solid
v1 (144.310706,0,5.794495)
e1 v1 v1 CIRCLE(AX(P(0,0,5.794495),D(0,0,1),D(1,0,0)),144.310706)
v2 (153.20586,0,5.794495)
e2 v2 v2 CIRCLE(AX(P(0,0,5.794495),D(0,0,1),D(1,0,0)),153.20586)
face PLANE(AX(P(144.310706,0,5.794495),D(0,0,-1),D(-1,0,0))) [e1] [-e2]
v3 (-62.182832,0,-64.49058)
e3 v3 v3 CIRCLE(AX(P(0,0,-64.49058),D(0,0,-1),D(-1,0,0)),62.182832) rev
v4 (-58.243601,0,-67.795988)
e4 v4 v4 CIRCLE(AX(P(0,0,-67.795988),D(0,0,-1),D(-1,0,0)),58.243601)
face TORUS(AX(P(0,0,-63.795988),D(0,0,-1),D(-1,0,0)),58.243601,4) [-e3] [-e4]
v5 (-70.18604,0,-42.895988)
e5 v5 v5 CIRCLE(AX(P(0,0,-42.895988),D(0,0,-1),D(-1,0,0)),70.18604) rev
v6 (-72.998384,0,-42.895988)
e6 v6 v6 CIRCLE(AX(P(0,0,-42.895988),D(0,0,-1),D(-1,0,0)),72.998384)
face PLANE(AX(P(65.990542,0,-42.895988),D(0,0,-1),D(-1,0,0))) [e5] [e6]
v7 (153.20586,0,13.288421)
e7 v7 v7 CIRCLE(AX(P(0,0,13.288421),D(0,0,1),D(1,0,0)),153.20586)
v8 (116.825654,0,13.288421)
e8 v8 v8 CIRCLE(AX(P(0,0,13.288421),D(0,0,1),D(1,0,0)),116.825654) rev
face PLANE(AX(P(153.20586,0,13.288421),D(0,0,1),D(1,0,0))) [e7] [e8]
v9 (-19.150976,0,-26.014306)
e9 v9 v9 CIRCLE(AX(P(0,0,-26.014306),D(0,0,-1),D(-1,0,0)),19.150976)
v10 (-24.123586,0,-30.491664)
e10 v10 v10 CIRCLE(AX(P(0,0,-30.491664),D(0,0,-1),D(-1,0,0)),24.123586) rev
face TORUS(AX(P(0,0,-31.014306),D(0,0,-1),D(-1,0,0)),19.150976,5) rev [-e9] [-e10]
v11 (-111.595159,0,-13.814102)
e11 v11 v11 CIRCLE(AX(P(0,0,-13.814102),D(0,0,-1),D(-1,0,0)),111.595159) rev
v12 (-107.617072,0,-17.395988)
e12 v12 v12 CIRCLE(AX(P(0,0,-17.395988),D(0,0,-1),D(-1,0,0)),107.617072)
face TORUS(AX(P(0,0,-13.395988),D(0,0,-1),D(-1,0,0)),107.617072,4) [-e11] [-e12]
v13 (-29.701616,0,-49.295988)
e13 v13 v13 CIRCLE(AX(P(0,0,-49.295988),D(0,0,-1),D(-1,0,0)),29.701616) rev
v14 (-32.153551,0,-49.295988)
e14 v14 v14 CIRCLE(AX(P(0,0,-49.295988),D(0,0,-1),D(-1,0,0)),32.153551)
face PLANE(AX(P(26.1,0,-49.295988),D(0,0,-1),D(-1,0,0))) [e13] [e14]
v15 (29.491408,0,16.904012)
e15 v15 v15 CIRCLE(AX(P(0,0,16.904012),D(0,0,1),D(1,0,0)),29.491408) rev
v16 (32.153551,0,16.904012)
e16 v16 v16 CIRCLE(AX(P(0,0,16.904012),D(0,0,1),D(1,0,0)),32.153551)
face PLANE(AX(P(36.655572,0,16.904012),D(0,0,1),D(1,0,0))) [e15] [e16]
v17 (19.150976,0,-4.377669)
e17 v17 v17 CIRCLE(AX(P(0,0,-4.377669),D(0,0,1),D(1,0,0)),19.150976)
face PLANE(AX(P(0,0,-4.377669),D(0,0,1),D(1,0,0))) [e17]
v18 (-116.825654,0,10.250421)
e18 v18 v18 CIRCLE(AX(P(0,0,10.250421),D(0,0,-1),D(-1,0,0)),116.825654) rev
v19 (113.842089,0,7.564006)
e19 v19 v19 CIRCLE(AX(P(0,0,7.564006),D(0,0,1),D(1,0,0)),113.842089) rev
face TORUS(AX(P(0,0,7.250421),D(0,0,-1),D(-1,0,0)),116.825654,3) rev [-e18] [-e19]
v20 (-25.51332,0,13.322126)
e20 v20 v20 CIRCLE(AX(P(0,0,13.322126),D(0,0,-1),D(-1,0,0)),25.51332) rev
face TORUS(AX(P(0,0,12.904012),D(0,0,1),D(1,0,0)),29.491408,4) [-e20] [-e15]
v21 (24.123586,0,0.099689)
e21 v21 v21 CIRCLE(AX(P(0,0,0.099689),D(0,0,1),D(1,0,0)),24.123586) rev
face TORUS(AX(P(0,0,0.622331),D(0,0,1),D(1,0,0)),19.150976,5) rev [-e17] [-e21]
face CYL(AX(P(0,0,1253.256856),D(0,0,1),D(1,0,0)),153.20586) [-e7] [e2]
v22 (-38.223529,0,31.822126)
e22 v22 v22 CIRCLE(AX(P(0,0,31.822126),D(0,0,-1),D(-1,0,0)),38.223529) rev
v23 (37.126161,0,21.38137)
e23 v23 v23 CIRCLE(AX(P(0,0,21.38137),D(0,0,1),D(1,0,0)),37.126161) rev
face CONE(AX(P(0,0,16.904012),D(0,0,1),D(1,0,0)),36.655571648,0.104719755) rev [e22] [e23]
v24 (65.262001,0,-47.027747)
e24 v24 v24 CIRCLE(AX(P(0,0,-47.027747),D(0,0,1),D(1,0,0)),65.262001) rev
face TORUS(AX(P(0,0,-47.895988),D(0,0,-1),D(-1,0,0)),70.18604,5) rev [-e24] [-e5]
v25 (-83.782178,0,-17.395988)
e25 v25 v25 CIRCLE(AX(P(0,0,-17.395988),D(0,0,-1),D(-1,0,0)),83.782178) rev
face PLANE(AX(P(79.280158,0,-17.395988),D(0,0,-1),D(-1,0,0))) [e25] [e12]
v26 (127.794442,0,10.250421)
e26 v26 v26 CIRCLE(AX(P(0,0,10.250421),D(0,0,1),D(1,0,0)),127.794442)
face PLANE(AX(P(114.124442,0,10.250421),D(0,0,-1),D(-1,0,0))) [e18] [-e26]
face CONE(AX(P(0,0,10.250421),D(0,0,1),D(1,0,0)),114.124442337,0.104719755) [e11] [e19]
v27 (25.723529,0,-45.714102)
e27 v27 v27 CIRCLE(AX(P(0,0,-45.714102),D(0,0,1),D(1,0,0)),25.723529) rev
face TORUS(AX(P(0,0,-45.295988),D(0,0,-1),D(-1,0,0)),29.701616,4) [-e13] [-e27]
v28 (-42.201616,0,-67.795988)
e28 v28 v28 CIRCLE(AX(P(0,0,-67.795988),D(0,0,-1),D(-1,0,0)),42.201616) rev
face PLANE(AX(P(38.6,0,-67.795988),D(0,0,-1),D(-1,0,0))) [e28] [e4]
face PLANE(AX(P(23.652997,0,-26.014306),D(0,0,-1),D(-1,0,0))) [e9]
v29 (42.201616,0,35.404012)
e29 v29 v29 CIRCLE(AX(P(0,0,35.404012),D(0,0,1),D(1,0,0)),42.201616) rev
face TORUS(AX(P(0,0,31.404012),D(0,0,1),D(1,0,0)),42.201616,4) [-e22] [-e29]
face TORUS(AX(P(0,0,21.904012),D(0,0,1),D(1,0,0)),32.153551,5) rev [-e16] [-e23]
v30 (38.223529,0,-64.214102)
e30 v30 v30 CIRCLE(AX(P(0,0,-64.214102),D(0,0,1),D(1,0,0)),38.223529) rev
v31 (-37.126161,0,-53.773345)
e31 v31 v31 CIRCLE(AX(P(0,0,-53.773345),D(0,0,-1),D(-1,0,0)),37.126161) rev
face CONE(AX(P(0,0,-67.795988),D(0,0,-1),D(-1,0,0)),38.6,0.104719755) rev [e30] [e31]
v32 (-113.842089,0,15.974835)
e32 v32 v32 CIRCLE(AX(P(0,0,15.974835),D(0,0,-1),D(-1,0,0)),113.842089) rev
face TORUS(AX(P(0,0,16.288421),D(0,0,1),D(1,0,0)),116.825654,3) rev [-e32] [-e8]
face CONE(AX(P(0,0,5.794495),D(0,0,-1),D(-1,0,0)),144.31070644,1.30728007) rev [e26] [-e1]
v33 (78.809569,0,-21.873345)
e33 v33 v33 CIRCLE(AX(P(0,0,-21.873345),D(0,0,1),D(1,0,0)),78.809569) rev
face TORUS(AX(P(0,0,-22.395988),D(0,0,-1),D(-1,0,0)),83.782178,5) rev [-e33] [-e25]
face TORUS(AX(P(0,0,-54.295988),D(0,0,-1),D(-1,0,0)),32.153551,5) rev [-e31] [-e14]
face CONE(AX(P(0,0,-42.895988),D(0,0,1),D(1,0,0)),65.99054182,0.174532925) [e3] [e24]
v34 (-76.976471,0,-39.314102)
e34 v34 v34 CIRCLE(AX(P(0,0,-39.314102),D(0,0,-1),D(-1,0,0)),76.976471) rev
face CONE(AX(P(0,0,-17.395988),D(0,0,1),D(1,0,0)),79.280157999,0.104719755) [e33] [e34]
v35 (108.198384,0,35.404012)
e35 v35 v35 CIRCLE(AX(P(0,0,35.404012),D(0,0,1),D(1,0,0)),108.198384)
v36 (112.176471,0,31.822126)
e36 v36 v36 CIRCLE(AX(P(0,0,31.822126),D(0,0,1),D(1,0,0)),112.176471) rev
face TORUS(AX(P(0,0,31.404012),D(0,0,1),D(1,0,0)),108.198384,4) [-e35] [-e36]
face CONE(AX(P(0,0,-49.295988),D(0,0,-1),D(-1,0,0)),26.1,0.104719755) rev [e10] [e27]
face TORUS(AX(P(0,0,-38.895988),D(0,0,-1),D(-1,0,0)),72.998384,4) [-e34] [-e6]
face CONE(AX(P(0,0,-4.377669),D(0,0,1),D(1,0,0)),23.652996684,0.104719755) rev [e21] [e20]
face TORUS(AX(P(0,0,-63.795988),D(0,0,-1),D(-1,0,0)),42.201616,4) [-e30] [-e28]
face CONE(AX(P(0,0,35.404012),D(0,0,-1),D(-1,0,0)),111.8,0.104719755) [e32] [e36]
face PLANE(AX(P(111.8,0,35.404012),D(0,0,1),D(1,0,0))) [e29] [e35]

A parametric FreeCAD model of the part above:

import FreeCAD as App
import Part
import Sketcher
Q = App.Units.Quantity


def edges_at(feature, points):
    """Names of the edges that pass closest to the given points."""
    edges = feature.Shape.Edges
    near = lambda p: min(range(len(edges)), key=lambda i: edges[i].distToShape(Part.Vertex(*p))[0])
    return sorted({f"Edge{near(p) + 1}" for p in points})

doc = App.newDocument("Part")
body = doc.addObject("PartDesign::Body", "Body")

# Sketch on XZ plane
sketch1 = doc.addObject("Sketcher::SketchObject", "Sketch")
body.addObject(sketch1)
sketch1.AttachmentSupport = (doc.XZ_Plane, [""])
sketch1.MapMode = "FlatFace"
sketch1.addGeometry([
    Part.LineSegment(App.Vector(36.655572, -49.295988, 0), App.Vector(26.1, -49.295988, 0)),  # 0
    Part.LineSegment(App.Vector(26.1, -49.295988, 0), App.Vector(23.652997, -26.014306, 0)),  # 1
    Part.LineSegment(App.Vector(23.652997, -26.014306, 0), App.Vector(0, -26.014306, 0)),  # 2
    Part.LineSegment(App.Vector(0, -26.014306, 0), App.Vector(0, -4.377669, 0)),  # 3
    Part.LineSegment(App.Vector(0, -4.377669, 0), App.Vector(23.652997, -4.377669, 0)),  # 4
    Part.LineSegment(App.Vector(23.652997, -4.377669, 0), App.Vector(25.889792, 16.904012, 0)),  # 5
    Part.LineSegment(App.Vector(25.889792, 16.904012, 0), App.Vector(36.655572, 16.904012, 0)),  # 6
    Part.LineSegment(App.Vector(36.655572, 16.904012, 0), App.Vector(38.6, 35.404012, 0)),  # 7
    Part.LineSegment(App.Vector(38.6, 35.404012, 0), App.Vector(111.8, 35.404012, 0)),  # 8
    Part.LineSegment(App.Vector(111.8, 35.404012, 0), App.Vector(114.124442, 13.288421, 0)),  # 9
    Part.LineSegment(App.Vector(114.124442, 13.288421, 0), App.Vector(153.20586, 13.288421, 0)),  # 10
    Part.LineSegment(App.Vector(153.20586, 13.288421, 0), App.Vector(153.20586, 5.794495, 0)),  # 11
    Part.LineSegment(App.Vector(153.20586, 5.794495, 0), App.Vector(144.310706, 5.794495, 0)),  # 12
    Part.LineSegment(App.Vector(144.310706, 5.794495, 0), App.Vector(127.794442, 10.250421, 0)),  # 13
    Part.LineSegment(App.Vector(127.794442, 10.250421, 0), App.Vector(114.124442, 10.250421, 0)),  # 14
    Part.LineSegment(App.Vector(114.124442, 10.250421, 0), App.Vector(111.218688, -17.395988, 0)),  # 15
    Part.LineSegment(App.Vector(111.218688, -17.395988, 0), App.Vector(79.280158, -17.395988, 0)),  # 16
    Part.LineSegment(App.Vector(79.280158, -17.395988, 0), App.Vector(76.6, -42.895988, 0)),  # 17
    Part.LineSegment(App.Vector(76.6, -42.895988, 0), App.Vector(65.990542, -42.895988, 0)),  # 18
    Part.LineSegment(App.Vector(65.990542, -42.895988, 0), App.Vector(61.6, -67.795988, 0)),  # 19
    Part.LineSegment(App.Vector(61.6, -67.795988, 0), App.Vector(38.6, -67.795988, 0)),  # 20
    Part.LineSegment(App.Vector(38.6, -67.795988, 0), App.Vector(36.655572, -49.295988, 0)),  # 21
], False)
sketch1.addConstraint([
    Sketcher.Constraint("Coincident", 0, 2, 1, 1),
    Sketcher.Constraint("Coincident", 1, 2, 2, 1),
    Sketcher.Constraint("Coincident", 2, 2, 3, 1),
    Sketcher.Constraint("Coincident", 3, 2, 4, 1),
    Sketcher.Constraint("Coincident", 4, 2, 5, 1),
    Sketcher.Constraint("Coincident", 5, 2, 6, 1),
    Sketcher.Constraint("Coincident", 6, 2, 7, 1),
    Sketcher.Constraint("Coincident", 7, 2, 8, 1),
    Sketcher.Constraint("Coincident", 8, 2, 9, 1),
    Sketcher.Constraint("Coincident", 9, 2, 10, 1),
    Sketcher.Constraint("Coincident", 10, 2, 11, 1),
    Sketcher.Constraint("Coincident", 11, 2, 12, 1),
    Sketcher.Constraint("Coincident", 12, 2, 13, 1),
    Sketcher.Constraint("Coincident", 13, 2, 14, 1),
    Sketcher.Constraint("Coincident", 14, 2, 15, 1),
    Sketcher.Constraint("Coincident", 15, 2, 16, 1),
    Sketcher.Constraint("Coincident", 16, 2, 17, 1),
    Sketcher.Constraint("Coincident", 17, 2, 18, 1),
    Sketcher.Constraint("Coincident", 18, 2, 19, 1),
    Sketcher.Constraint("Coincident", 19, 2, 20, 1),
    Sketcher.Constraint("Coincident", 20, 2, 21, 1),
    Sketcher.Constraint("Coincident", 21, 2, 0, 1),
    Sketcher.Constraint("Horizontal", 0),
    Sketcher.Constraint("Horizontal", 2),
    Sketcher.Constraint("Vertical", 3),
    Sketcher.Constraint("Horizontal", 4),
    Sketcher.Constraint("Horizontal", 6),
    Sketcher.Constraint("Horizontal", 8),
    Sketcher.Constraint("Horizontal", 10),
    Sketcher.Constraint("Vertical", 11),
    Sketcher.Constraint("Horizontal", 12),
    Sketcher.Constraint("Horizontal", 14),
    Sketcher.Constraint("Horizontal", 16),
    Sketcher.Constraint("Horizontal", 18),
    Sketcher.Constraint("Horizontal", 20),
    Sketcher.Constraint("PointOnObject", 2, 2, -2),
    Sketcher.Constraint("Parallel", 5, 7),
    Sketcher.Constraint("Parallel", 1, 9),
    Sketcher.Constraint("Parallel", 7, 15),
    Sketcher.Constraint("Parallel", 15, 17),
    Sketcher.Constraint("Parallel", 9, 21),
    Sketcher.Constraint("Vertical", 1, 2, 4, 2),
    Sketcher.Constraint("Vertical", 9, 2, 14, 2),
    Sketcher.Constraint("Vertical", 7, 2, 20, 2),
    Sketcher.Constraint("Vertical", 6, 2, 21, 2),
    Sketcher.Constraint("Equal", 7, 21),
    Sketcher.Constraint("DistanceX", 20, 2, 20, 1, Q("23 mm")),
    Sketcher.Constraint("Angle", 1, Q("96 deg")),
    Sketcher.Constraint("Angle", 19, Q("-100 deg")),
    Sketcher.Constraint("DistanceX", 8, 1, 8, 2, Q("73.2 mm")),
    Sketcher.Constraint("DistanceX", 19, 2, 17, 2, Q("15 mm")),
    Sketcher.Constraint("DistanceX", 14, 2, 14, 1, Q("13.67 mm")),
    Sketcher.Constraint("DistanceX", -1, 1, 0, 2, Q("26.1 mm")),
    Sketcher.Constraint("DistanceX", -1, 1, 7, 2, Q("38.6 mm")),
    Sketcher.Constraint("DistanceY", 0, 2, 5, 2, Q("66.2 mm")),
    Sketcher.Constraint("DistanceY", 6, 2, 7, 2, Q("18.5 mm")),
    Sketcher.Constraint("DistanceY", 16, 2, 6, 2, Q("34.3 mm")),
    Sketcher.Constraint("DistanceY", 17, 2, 16, 2, Q("25.5 mm")),
    Sketcher.Constraint("DistanceY", 13, 2, 9, 2, Q("3.038 mm")),
    Sketcher.Constraint("DistanceX", 6, 1, 6, 2, Q("10.76578 mm")),
    Sketcher.Constraint("DistanceX", 16, 2, 16, 1, Q("31.93853 mm")),
    Sketcher.Constraint("Distance", 13, Q("17.10679 mm")),
    Sketcher.Constraint("DistanceX", 2, 2, 2, 1, Q("23.652997 mm")),
    Sketcher.Constraint("DistanceX", 10, 1, 10, 2, Q("39.081417 mm")),
    Sketcher.Constraint("DistanceX", 12, 2, 12, 1, Q("8.895153 mm")),
    Sketcher.Constraint("DistanceY", 3, 2, -1, 1, Q("4.377669 mm")),
])
revolution = doc.addObject("PartDesign::Revolution", "Revolution")
body.addObject(revolution)
revolution.Profile = sketch1
revolution.ReferenceAxis = (sketch1, ["V_Axis"])
revolution.Angle = 360
doc.recompute()

fillet = doc.addObject("PartDesign::Fillet", "Fillet")
body.addObject(fillet)
fillet.Base = (revolution, edges_at(revolution, [(-61.6, 0, -67.796)]))
fillet.Radius = 4
doc.recompute()

fillet2 = doc.addObject("PartDesign::Fillet", "Fillet001")
body.addObject(fillet2)
fillet2.Base = (fillet, edges_at(fillet, [
    (-25.89, 0, 16.904),
    (-111.8, 0, 35.404),
    (-111.219, 0, -17.396),
    (-76.6, 0, -42.896),
    (-38.6, 0, -67.796),
    (-26.1, 0, -49.296),
]))
fillet2.Radius = 4
doc.recompute()

fillet3 = doc.addObject("PartDesign::Fillet", "Fillet002")
body.addObject(fillet3)
fillet3.Base = (fillet2, edges_at(fillet2, [(-38.6, 0, 35.404)]))
fillet3.Radius = 4
doc.recompute()

fillet4 = doc.addObject("PartDesign::Fillet", "Fillet003")
body.addObject(fillet4)
fillet4.Base = (fillet3, edges_at(fillet3, [
    (-23.653, 0, -26.014),
    (-23.653, 0, -4.378),
    (-36.656, 0, 16.904),
    (-79.28, 0, -17.396),
    (-65.991, 0, -42.896),
    (-36.656, 0, -49.296),
]))
fillet4.Radius = 5
doc.recompute()

fillet5 = doc.addObject("PartDesign::Fillet", "Fillet004")
body.addObject(fillet5)
fillet5.Base = (fillet4, edges_at(fillet4, [(-114.124, 0, 13.288), (-114.124, 0, 10.25)]))
fillet5.Radius = 3

doc.recompute()
